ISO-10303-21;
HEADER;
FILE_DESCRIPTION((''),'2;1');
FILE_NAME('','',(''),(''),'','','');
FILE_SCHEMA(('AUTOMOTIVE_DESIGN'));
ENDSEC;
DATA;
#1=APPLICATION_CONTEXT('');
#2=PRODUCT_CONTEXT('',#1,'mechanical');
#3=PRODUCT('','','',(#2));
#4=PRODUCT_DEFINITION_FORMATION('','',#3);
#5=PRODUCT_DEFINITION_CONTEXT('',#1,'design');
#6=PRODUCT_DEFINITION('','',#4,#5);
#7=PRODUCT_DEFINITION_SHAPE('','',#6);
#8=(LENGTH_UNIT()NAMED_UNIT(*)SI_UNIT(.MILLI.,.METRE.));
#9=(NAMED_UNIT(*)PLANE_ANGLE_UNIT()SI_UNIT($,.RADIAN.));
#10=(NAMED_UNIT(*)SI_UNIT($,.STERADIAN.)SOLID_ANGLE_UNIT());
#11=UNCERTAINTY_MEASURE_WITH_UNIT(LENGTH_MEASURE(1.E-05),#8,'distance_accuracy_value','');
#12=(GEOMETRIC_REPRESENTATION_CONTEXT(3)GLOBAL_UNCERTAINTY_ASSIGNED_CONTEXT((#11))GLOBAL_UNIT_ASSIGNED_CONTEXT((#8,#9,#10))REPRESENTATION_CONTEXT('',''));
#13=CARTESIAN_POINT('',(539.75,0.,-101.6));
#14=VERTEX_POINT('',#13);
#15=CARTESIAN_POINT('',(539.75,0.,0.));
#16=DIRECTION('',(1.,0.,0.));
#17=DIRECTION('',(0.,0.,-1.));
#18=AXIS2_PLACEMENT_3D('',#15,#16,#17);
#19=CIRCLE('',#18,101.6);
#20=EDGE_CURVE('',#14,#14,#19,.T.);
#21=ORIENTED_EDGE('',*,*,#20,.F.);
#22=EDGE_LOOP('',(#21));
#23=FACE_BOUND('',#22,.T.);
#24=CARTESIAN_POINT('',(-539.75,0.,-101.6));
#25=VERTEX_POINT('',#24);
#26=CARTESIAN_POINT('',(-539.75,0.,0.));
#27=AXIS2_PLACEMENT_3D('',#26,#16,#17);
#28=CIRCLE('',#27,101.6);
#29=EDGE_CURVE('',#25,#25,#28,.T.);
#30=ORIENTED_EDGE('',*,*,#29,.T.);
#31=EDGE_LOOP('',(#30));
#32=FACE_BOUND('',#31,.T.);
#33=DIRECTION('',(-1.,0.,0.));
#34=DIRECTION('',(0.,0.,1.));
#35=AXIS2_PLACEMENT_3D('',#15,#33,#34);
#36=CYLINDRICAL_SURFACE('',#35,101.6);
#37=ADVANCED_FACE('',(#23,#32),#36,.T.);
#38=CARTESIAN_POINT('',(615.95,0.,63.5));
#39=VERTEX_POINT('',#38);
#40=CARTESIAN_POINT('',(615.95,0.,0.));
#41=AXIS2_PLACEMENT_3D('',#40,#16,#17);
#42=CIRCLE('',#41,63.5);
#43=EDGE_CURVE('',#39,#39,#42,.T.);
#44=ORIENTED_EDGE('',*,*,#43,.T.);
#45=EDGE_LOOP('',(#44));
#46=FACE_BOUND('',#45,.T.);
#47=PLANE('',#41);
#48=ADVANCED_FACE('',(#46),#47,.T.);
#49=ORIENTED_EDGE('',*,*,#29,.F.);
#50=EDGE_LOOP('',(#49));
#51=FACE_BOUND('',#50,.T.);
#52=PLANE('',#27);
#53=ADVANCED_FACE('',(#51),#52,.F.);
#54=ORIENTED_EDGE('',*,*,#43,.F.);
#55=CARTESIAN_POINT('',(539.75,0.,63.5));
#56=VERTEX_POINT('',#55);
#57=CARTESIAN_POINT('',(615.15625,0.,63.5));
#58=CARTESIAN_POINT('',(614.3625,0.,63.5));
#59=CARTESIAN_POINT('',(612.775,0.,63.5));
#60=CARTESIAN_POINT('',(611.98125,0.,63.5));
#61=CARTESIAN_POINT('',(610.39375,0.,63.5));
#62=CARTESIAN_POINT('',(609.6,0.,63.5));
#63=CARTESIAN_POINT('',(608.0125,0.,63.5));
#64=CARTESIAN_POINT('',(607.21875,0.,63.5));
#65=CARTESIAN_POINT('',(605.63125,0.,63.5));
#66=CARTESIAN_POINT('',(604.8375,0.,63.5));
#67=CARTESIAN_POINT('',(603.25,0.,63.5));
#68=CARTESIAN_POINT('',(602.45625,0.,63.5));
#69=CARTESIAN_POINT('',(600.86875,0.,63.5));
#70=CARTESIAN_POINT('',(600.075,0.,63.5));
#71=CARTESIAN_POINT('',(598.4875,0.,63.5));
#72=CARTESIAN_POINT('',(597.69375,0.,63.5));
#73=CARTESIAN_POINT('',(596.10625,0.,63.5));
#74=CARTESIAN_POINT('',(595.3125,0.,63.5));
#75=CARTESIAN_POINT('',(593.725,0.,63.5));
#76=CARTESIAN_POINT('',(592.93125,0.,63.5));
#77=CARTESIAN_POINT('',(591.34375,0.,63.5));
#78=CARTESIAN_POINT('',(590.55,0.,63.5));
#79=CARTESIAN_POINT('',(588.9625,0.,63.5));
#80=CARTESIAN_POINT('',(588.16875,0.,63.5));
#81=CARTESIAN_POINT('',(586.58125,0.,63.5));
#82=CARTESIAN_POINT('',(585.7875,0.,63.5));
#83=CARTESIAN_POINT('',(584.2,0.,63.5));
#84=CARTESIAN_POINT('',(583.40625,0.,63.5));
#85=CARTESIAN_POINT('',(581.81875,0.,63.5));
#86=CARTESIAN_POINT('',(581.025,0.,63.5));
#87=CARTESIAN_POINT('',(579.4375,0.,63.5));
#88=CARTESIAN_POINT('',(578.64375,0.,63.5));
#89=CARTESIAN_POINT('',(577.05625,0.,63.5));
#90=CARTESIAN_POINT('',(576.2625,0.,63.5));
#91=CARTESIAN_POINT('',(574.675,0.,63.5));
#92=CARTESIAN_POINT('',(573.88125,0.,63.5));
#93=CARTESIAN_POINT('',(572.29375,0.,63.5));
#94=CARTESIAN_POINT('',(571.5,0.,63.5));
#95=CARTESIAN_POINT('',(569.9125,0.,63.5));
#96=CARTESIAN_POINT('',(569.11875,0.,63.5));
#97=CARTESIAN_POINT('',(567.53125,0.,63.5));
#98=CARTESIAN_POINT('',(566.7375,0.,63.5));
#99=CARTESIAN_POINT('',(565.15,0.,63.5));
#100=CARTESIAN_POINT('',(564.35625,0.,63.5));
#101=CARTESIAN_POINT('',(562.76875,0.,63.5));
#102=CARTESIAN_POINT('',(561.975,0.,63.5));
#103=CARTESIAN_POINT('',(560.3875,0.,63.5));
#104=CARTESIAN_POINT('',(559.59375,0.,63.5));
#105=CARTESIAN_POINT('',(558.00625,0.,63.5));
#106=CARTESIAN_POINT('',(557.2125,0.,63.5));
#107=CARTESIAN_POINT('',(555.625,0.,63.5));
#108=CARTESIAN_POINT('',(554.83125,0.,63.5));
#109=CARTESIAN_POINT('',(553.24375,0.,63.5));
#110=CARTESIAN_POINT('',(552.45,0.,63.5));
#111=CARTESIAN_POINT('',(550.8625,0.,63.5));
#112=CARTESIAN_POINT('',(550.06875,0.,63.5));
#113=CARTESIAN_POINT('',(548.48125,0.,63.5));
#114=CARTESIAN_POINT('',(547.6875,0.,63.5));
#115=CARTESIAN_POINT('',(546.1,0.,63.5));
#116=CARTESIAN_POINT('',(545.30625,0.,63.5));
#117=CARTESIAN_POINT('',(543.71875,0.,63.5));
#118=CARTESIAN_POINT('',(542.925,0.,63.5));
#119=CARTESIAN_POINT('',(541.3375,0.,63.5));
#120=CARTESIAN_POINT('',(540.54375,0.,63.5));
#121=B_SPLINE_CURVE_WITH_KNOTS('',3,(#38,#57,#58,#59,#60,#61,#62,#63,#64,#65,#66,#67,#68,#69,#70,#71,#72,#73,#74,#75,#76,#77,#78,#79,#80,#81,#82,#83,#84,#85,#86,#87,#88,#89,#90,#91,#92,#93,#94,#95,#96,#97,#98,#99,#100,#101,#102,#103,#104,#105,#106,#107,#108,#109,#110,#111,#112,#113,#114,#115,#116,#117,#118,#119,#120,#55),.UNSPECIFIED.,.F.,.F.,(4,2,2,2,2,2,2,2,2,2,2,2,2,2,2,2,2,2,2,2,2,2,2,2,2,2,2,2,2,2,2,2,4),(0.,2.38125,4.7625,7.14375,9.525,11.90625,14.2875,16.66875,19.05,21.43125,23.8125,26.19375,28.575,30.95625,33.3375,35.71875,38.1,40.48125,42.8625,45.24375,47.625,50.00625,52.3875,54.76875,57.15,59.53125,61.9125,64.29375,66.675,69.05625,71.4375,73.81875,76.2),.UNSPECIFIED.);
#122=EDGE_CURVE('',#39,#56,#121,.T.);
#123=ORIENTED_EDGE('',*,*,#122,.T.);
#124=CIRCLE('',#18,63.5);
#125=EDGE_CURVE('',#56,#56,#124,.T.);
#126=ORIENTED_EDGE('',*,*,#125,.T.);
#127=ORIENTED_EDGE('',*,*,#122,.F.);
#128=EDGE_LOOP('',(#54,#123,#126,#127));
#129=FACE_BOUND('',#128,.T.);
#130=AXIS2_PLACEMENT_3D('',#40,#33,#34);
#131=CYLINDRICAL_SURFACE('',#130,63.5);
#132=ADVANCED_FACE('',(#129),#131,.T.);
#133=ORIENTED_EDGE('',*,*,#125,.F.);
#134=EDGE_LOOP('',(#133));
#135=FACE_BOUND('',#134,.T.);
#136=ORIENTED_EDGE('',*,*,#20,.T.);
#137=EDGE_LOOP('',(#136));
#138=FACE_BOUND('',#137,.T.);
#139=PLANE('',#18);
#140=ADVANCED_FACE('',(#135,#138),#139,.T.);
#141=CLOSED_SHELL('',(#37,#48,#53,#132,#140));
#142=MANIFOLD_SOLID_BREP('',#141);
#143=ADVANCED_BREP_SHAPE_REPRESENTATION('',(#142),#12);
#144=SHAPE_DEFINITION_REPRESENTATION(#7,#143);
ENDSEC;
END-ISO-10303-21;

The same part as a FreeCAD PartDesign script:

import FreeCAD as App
import Part
import Sketcher
from FreeCAD import Vector
Q = App.Units.Quantity

doc = App.newDocument("Part")
body = doc.addObject("PartDesign::Body", "Body")

# Sketch on YZ plane
sketch1 = doc.addObject("Sketcher::SketchObject", "Sketch")
body.addObject(sketch1)
sketch1.AttachmentSupport = (doc.YZ_Plane, [""])
sketch1.MapMode = "FlatFace"
sketch1.addGeometry(Part.Circle(Vector(0, 0, 0), Vector(0, 0, 1), 101.6), False)
sketch1.addConstraint([
    Sketcher.Constraint("Coincident", 0, 3, -1, 1),
    Sketcher.Constraint("Diameter", 0, Q("8 in")),
])
pad1 = doc.addObject("PartDesign::Pad", "Pad")
body.addObject(pad1)
pad1.Profile = sketch1
pad1.Length = Q("42.5 in")
pad1.Midplane = True

# Sketch on YZ plane
sketch2 = doc.addObject("Sketcher::SketchObject", "Sketch001")
body.addObject(sketch2)
sketch2.AttachmentSupport = (doc.YZ_Plane, [""])
sketch2.MapMode = "FlatFace"
sketch2.AttachmentOffset = App.Placement(Vector(0, 0, 21.25 * 25.4), App.Rotation())
sketch2.addGeometry(Part.Circle(Vector(0, 0, 0), Vector(0, 0, 1), 63.5), False)
sketch2.addConstraint([
    Sketcher.Constraint("Coincident", 0, 3, -1, 1),
    Sketcher.Constraint("Diameter", 0, Q("5 in")),
])
pad2 = doc.addObject("PartDesign::Pad", "Pad001")
body.addObject(pad2)
pad2.Profile = sketch2
pad2.Length = Q("3 in")

doc.recompute()
